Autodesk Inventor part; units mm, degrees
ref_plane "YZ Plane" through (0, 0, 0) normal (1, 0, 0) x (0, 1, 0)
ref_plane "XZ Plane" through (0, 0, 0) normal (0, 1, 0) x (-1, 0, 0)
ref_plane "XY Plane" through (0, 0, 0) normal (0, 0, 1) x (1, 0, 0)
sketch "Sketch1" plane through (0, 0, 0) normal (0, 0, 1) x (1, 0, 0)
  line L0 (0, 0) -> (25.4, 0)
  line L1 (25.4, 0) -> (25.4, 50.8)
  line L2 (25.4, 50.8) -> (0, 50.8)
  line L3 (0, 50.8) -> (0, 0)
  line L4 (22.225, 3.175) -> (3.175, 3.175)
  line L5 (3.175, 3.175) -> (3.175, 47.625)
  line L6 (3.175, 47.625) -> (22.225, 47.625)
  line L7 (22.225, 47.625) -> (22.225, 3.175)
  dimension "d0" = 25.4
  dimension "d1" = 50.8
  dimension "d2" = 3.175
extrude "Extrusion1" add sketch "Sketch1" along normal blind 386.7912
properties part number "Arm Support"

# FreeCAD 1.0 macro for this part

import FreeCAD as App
import Part
import Sketcher
Q = App.Units.Quantity


def add_polygon(sketch, points):
    """Adds a closed chain of lines whose ends are joined by coincident constraints."""
    first, n = sketch.GeometryCount, len(points)
    for a, b in zip(points, points[1:] + points[:1]):
        sketch.addGeometry(Part.LineSegment(App.Vector(*a, 0), App.Vector(*b, 0)), False)
    for i in range(n):
        sketch.addConstraint(Sketcher.Constraint("Coincident", first + i, 2, first + (i + 1) % n, 1))

doc = App.newDocument("Part")
params = doc.addObject("Spreadsheet::Sheet", "Params")
for row, (alias, value) in enumerate([
    ("sketch1_width", "1 in"),
    ("sketch1_height", "2 in"),
    ("pad1_length", "15.228 in"),
], start=1):
    params.set(f"A{row}", alias)
    params.set(f"B{row}", "=" + value)
    params.setAlias(f"B{row}", alias)

body = doc.addObject("PartDesign::Body", "Body")

sketch1 = body.newObject("Sketcher::SketchObject", "Sketch")
sketch1.AttachmentSupport = (doc.getObject("XY_Plane"), [""])
sketch1.MapMode = "FlatFace"
add_polygon(sketch1, [(0, 51), (0, 0), (25, 0), (25, 51)])
add_polygon(sketch1, [(22, 48), (22, 3), (3, 3), (3, 48)])
sketch1.addConstraint([
    Sketcher.Constraint("Vertical", 0),
    Sketcher.Constraint("Horizontal", 1),
    Sketcher.Constraint("Vertical", 2),
    Sketcher.Constraint("Horizontal", 3),
    Sketcher.Constraint("Vertical", 4),
    Sketcher.Constraint("Horizontal", 5),
    Sketcher.Constraint("Vertical", 6),
    Sketcher.Constraint("Horizontal", 7),
    Sketcher.Constraint("Coincident", 0, 2, -1, 1),
    Sketcher.Constraint("DistanceX", 1, 1, 1, 2, Q("1 in")),
    Sketcher.Constraint("DistanceY", 0, 2, 0, 1, Q("2 in")),
    Sketcher.Constraint("DistanceY", -1, 1, 4, 2, Q("0.125 in")),
    Sketcher.Constraint("DistanceX", -1, 1, 5, 2, Q("0.125 in")),
    Sketcher.Constraint("DistanceX", 4, 2, 1, 2, Q("0.125 in")),
    Sketcher.Constraint("DistanceY", 6, 2, 3, 2, Q("0.125 in")),
])
sketch1.setExpression("Constraints[17]", "Params.sketch1_width")
sketch1.setExpression("Constraints[18]", "Params.sketch1_height")
pad1 = body.newObject("PartDesign::Pad", "Pad")
pad1.Profile = sketch1
pad1.setExpression("Length", "Params.pad1_length")

doc.recompute()
